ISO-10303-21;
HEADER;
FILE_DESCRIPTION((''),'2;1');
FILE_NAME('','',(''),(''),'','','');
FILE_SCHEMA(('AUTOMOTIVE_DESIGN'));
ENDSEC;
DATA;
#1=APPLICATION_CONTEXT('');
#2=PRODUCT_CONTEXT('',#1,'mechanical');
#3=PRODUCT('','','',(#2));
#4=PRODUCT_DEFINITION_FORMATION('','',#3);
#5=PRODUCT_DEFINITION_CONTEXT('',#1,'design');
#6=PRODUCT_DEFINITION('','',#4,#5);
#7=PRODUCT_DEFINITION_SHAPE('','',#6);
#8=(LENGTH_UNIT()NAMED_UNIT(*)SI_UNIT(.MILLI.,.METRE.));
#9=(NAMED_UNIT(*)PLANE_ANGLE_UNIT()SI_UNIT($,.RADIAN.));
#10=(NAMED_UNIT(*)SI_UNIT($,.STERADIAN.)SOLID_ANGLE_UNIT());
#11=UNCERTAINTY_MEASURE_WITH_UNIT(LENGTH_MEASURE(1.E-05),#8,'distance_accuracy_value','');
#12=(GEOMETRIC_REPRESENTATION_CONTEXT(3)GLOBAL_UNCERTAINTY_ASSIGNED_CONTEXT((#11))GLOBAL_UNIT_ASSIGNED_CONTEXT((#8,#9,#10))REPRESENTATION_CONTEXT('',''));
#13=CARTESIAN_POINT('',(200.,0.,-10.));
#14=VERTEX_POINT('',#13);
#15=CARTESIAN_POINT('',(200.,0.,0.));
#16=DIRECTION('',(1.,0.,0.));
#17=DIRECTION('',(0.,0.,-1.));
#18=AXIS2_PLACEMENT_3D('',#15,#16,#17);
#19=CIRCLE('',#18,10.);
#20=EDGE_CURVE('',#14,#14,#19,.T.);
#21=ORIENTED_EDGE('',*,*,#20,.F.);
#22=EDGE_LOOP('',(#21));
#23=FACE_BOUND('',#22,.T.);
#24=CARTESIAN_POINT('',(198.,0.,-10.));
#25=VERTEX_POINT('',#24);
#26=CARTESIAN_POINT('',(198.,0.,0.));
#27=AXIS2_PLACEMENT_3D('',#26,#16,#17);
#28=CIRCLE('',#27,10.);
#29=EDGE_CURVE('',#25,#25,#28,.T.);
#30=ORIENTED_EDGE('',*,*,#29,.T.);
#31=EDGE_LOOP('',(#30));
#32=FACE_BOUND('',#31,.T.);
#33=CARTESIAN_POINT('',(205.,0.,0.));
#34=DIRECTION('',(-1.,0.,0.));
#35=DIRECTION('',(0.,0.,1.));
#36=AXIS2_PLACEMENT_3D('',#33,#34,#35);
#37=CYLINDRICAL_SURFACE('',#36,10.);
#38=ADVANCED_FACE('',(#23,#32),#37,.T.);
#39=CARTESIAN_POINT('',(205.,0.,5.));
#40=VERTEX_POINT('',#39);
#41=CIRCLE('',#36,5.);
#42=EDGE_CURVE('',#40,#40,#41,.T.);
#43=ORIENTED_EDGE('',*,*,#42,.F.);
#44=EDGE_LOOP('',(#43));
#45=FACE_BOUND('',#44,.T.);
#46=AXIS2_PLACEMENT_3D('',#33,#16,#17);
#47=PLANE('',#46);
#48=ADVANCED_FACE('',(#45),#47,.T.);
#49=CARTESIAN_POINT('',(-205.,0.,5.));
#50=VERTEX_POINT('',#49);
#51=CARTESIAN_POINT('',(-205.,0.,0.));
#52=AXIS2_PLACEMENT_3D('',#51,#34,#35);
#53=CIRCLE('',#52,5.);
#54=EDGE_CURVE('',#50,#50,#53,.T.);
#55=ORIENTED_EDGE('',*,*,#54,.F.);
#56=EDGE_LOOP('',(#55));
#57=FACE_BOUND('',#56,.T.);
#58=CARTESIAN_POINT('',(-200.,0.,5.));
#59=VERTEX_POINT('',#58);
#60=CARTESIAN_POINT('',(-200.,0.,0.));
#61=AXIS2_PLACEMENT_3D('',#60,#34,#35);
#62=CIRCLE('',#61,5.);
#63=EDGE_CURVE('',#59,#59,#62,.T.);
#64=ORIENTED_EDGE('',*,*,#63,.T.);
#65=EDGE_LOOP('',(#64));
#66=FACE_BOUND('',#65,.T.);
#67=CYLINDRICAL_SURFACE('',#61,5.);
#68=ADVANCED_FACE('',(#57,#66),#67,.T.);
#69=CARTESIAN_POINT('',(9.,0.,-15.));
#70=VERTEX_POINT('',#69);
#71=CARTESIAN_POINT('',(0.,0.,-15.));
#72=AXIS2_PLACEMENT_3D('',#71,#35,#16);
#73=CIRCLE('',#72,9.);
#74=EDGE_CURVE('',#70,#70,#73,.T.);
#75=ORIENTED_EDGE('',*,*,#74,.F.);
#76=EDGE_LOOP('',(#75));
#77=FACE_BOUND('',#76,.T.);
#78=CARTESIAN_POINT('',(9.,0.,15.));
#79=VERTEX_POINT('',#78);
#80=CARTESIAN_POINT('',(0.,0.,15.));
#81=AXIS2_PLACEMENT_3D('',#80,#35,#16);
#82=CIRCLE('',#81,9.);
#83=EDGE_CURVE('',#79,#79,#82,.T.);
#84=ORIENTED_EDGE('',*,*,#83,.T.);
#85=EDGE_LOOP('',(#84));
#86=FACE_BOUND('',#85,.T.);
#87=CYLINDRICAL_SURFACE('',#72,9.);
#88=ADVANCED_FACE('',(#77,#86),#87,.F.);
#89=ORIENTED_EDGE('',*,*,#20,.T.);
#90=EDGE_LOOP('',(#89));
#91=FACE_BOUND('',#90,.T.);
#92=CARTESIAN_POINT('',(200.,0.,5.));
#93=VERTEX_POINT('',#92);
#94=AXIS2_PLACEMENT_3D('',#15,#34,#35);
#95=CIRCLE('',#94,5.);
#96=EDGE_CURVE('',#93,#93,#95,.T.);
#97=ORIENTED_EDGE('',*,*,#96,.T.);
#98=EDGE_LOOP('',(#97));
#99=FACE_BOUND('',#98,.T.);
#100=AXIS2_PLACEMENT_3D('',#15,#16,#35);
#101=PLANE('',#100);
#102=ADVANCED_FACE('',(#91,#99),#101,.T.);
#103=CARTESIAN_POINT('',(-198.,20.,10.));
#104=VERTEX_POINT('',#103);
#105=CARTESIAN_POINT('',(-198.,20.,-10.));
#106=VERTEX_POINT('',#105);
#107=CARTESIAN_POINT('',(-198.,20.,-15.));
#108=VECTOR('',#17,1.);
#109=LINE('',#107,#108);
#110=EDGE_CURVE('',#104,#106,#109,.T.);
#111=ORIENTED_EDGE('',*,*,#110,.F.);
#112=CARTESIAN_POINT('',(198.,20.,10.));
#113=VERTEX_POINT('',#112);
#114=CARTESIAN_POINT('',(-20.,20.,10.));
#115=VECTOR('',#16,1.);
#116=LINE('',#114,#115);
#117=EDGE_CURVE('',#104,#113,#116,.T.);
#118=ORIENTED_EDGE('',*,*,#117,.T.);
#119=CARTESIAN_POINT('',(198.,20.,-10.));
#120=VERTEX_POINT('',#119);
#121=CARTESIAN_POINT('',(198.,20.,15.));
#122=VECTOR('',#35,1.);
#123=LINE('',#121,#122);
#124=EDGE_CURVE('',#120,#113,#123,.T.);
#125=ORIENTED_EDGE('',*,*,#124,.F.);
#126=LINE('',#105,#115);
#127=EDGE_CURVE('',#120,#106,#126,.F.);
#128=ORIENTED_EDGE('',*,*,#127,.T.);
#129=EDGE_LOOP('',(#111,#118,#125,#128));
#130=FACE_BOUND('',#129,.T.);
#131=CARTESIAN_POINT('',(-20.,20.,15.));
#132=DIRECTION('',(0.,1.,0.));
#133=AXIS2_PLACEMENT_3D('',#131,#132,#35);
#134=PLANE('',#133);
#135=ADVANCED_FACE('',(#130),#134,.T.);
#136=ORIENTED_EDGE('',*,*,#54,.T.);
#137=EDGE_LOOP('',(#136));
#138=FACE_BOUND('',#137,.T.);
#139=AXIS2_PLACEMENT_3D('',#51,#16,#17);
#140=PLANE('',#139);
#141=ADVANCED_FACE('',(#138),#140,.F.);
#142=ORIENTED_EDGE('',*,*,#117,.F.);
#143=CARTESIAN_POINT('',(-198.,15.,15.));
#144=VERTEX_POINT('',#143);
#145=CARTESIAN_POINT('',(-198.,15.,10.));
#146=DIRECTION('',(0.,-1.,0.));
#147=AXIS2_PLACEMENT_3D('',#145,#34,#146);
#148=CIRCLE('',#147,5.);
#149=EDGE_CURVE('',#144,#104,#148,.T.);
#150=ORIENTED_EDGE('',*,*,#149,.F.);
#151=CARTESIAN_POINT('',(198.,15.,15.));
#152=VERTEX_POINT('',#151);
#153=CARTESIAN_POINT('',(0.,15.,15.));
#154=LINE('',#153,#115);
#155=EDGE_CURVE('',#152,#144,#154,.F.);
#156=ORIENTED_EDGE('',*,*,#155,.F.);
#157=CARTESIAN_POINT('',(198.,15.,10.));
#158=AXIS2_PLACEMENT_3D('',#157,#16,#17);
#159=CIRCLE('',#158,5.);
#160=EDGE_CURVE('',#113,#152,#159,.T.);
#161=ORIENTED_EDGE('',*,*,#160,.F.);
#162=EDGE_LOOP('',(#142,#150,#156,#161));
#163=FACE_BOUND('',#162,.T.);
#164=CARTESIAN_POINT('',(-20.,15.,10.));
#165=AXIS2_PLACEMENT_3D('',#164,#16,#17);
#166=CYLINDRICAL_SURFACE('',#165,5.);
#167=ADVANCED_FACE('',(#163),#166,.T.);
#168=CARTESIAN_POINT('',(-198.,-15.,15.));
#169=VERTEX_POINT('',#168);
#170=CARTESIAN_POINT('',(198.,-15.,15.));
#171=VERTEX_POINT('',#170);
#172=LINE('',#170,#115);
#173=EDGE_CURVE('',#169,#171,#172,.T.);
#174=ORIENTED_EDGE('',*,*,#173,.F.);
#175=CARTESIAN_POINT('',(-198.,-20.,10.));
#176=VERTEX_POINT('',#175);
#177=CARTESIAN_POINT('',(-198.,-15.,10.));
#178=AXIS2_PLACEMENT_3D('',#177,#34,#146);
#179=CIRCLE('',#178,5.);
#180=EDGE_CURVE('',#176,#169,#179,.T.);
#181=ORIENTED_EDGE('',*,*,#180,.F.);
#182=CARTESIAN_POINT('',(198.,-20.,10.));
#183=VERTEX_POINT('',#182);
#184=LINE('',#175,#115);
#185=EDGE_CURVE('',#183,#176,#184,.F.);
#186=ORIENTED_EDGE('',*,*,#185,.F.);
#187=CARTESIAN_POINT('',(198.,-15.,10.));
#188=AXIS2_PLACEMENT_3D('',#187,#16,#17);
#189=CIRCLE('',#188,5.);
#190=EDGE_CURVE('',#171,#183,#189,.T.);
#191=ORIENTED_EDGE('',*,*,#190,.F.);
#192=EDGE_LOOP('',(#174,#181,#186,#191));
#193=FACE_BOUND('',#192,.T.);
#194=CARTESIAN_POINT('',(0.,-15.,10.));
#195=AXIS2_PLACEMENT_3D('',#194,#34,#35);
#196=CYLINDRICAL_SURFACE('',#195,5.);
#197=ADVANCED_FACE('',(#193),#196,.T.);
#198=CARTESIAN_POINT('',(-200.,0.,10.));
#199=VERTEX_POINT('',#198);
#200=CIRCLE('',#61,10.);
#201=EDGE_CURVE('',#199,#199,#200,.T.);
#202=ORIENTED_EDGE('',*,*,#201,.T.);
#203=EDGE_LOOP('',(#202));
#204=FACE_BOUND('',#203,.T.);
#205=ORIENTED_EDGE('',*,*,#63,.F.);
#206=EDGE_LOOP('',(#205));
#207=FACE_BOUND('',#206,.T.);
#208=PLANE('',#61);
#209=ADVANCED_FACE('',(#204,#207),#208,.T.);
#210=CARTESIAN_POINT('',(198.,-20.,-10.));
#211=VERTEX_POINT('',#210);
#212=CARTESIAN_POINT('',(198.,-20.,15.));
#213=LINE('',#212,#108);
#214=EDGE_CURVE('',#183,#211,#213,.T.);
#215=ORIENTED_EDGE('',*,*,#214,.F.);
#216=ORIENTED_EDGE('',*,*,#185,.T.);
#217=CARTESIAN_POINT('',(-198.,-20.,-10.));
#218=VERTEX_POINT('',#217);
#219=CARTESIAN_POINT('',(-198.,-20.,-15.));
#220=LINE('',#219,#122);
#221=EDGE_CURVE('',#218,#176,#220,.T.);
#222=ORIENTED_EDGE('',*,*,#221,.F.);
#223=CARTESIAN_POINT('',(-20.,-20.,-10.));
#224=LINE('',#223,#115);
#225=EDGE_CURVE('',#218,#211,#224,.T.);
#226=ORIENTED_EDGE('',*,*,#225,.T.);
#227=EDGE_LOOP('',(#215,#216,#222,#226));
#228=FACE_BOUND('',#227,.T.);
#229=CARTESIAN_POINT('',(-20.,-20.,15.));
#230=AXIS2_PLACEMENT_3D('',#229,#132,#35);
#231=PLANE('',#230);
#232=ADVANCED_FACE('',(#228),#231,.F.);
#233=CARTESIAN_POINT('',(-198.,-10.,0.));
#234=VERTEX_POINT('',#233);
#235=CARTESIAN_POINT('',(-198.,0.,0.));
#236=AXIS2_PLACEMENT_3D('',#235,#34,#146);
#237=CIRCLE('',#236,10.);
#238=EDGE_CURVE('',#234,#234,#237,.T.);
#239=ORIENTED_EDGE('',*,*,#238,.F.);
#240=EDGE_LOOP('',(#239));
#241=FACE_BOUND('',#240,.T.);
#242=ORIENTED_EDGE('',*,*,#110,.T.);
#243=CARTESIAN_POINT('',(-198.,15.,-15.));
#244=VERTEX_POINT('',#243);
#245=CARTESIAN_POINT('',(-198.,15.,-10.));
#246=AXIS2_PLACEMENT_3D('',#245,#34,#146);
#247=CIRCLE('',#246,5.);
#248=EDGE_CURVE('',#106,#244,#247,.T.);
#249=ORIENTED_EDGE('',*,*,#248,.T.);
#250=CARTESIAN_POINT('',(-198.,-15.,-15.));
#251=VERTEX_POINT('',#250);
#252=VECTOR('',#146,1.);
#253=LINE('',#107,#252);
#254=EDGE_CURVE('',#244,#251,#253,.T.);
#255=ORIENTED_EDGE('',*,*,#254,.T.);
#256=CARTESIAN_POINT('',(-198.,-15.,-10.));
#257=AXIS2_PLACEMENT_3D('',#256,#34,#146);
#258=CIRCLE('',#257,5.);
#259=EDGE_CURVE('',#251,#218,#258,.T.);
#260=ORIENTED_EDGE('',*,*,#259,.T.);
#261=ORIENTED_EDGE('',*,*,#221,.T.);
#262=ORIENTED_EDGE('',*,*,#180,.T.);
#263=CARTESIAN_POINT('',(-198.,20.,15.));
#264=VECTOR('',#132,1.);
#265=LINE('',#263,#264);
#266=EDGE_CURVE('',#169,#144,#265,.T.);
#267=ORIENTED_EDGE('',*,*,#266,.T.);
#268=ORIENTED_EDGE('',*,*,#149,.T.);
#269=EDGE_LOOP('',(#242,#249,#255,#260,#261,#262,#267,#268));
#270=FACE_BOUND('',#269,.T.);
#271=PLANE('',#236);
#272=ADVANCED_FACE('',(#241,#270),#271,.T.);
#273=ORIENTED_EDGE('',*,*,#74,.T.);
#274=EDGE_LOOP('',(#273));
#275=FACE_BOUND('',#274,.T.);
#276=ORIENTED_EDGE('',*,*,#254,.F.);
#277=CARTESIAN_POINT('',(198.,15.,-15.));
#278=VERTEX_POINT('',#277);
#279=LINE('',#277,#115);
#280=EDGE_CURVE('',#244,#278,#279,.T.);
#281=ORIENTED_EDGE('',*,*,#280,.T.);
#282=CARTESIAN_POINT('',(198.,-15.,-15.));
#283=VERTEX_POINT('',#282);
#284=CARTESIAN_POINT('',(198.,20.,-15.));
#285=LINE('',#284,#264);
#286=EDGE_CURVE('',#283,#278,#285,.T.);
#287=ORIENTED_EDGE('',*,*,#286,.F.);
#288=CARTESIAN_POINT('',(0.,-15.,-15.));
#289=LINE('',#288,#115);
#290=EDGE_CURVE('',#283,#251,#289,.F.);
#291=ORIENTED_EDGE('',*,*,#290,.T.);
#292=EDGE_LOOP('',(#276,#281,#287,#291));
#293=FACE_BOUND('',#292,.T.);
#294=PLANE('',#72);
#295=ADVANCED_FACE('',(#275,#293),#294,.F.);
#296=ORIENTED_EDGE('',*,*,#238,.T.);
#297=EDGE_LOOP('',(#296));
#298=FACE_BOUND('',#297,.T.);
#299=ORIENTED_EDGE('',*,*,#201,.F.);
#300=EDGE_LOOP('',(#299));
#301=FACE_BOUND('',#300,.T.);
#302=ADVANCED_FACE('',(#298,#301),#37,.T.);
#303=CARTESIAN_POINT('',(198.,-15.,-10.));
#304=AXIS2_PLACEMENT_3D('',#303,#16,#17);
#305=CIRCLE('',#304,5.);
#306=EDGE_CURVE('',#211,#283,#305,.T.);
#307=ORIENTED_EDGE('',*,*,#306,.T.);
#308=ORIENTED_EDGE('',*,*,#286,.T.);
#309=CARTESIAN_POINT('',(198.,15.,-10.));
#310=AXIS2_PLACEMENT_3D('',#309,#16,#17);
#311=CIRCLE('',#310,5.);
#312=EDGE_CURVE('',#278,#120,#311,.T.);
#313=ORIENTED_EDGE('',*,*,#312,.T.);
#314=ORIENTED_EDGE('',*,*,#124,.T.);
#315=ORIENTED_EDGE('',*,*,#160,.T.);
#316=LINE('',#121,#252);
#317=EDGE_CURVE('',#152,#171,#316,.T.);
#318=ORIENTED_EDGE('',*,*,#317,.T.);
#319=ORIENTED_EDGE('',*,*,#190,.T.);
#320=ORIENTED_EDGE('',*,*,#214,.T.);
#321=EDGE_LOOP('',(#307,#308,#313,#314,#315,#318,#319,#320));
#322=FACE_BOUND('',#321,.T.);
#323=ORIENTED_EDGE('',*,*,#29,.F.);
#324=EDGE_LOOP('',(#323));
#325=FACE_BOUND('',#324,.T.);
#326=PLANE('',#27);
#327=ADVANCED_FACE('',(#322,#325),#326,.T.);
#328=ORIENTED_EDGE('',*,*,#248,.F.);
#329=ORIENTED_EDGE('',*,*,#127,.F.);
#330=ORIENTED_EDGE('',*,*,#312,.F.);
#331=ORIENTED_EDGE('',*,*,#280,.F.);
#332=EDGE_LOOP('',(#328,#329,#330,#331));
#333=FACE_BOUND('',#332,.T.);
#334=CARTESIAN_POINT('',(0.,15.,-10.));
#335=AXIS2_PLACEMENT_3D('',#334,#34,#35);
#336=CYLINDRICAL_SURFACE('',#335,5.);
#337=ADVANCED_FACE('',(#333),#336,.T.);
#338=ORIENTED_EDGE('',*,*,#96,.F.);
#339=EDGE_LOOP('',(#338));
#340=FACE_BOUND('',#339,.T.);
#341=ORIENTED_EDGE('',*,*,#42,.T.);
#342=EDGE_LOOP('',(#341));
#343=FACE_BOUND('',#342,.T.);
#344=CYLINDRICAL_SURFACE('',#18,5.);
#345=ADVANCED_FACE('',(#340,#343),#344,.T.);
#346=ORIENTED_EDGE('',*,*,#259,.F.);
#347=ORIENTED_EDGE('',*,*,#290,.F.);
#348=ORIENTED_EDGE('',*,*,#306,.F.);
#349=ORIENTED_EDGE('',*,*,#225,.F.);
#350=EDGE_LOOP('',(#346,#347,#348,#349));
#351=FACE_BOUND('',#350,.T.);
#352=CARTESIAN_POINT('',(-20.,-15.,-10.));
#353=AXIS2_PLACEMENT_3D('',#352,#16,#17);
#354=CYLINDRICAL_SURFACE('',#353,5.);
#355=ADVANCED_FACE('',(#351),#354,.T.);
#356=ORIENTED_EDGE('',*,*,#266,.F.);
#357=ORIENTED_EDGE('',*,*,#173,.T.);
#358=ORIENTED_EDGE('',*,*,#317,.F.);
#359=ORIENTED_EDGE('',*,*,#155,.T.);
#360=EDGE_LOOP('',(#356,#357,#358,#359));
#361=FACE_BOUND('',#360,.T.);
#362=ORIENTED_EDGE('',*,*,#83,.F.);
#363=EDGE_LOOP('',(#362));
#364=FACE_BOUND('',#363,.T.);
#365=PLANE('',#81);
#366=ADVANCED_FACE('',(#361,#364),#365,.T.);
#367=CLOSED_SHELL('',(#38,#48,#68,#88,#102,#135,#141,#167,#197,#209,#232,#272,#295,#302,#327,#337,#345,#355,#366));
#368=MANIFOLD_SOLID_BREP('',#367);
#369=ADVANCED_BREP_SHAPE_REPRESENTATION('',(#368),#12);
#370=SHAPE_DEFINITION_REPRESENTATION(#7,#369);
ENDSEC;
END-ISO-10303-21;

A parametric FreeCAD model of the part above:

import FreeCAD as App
import Part
import Sketcher

V = App.Vector


def edges_at(feature, points):
    """Names of the edges that pass closest to the given points."""
    edges = feature.Shape.Edges
    near = lambda p: min(range(len(edges)), key=lambda i: edges[i].distToShape(Part.Vertex(*p))[0])
    return sorted({f"Edge{near(p) + 1}" for p in points})

doc = App.newDocument("Part")
body = doc.addObject("PartDesign::Body", "Body")

sketch1 = body.newObject("Sketcher::SketchObject", "Sketch")
sketch1.AttachmentSupport = (doc.getObject("YZ_Plane"), [""])
sketch1.MapMode = "FlatFace"
sketch1.addGeometry(Part.Circle(V(0, 0, 0), V(0, 0, 1), 10), False)
sketch1.addConstraint([
    Sketcher.Constraint("Coincident", 0, 3, -1, 1),
    Sketcher.Constraint("Diameter", 0, 20.0),
])
pad1 = body.newObject("PartDesign::Pad", "Pad")
pad1.Profile = sketch1
pad1.Length = 410
pad1.Midplane = True

sketch2 = body.newObject("Sketcher::SketchObject", "Sketch001")
sketch2.AttachmentSupport = (doc.getObject("YZ_Plane"), [""])
sketch2.MapMode = "FlatFace"
sketch2.AttachmentOffset = App.Placement(V(0, 0, -205), App.Rotation())
sketch2.addGeometry([
    Part.Circle(V(0, 0, 0), V(0, 0, 1), 12),
    Part.Circle(V(0, 0, 0), V(0, 0, 1), 5),
], False)
sketch2.addConstraint([
    Sketcher.Constraint("Coincident", 0, 3, -1, 1),
    Sketcher.Constraint("Coincident", 1, 3, -1, 1),
    Sketcher.Constraint("Diameter", 0, 25.0),
    Sketcher.Constraint("Diameter", 1, 10.0),
])
pocket1 = body.newObject("PartDesign::Pocket", "Pocket")
pocket1.Profile = sketch2
pocket1.Length = 5
pocket1.Reversed = True
doc.recompute()

mirrored = body.newObject("PartDesign::Mirrored", "Mirrored")
mirrored.Originals = [pocket1]
mirrored.MirrorPlane = (doc.getObject("YZ_Plane"), [""])
body.Tip = mirrored

sketch3 = body.newObject("Sketcher::SketchObject", "Sketch002")
sketch3.AttachmentSupport = (doc.getObject("XY_Plane"), [""])
sketch3.MapMode = "FlatFace"
sketch3.addGeometry([
    Part.LineSegment(V(-20, 20, 0), V(-20, -20, 0)),
    Part.LineSegment(V(-20, -20, 0), V(20, -20, 0)),
    Part.LineSegment(V(20, -20, 0), V(20, 20, 0)),
    Part.LineSegment(V(20, 20, 0), V(-20, 20, 0)),
], False)
sketch3.addConstraint([
    Sketcher.Constraint("Coincident", 0, 2, 1, 1),
    Sketcher.Constraint("Coincident", 1, 2, 2, 1),
    Sketcher.Constraint("Coincident", 2, 2, 3, 1),
    Sketcher.Constraint("Coincident", 3, 2, 0, 1),
    Sketcher.Constraint("Vertical", 0),
    Sketcher.Constraint("Horizontal", 1),
    Sketcher.Constraint("Vertical", 2),
    Sketcher.Constraint("Horizontal", 3),
    Sketcher.Constraint("Symmetric", 0, 2, 2, 2, -1, 1),
    Sketcher.Constraint("Equal", 3, 0),
    Sketcher.Constraint("DistanceX", 1, 1, 1, 2, 40.0),
])
pad2 = body.newObject("PartDesign::Pad", "Pad001")
pad2.Profile = sketch3
pad2.Length = 30
pad2.Midplane = True

sketch4 = body.newObject("Sketcher::SketchObject", "Sketch003")
sketch4.AttachmentSupport = (doc.getObject("XY_Plane"), [""])
sketch4.MapMode = "FlatFace"
sketch4.addGeometry(Part.Circle(V(0, 0, 0), V(0, 0, 1), 9), False)
sketch4.addConstraint([
    Sketcher.Constraint("Coincident", 0, 3, -1, 1),
    Sketcher.Constraint("Diameter", 0, 18.0),
])
pocket2 = body.newObject("PartDesign::Pocket", "Pocket001")
pocket2.Profile = sketch4
pocket2.Length = 30
pocket2.Midplane = True
doc.recompute()

fillet = body.newObject("PartDesign::Fillet", "Fillet")
fillet.Base = (pocket2, edges_at(pocket2, [(-20, 0, 10), (20, 0, 10)]))
fillet.Radius = 2

sketch5 = body.newObject("Sketcher::SketchObject", "Sketch004")
sketch5.AttachmentSupport = (doc.getObject("YZ_Plane"), [""])
sketch5.MapMode = "FlatFace"
sketch5.AttachmentOffset = App.Placement(V(0, 0, -20), App.Rotation())
sketch5.addGeometry([
    Part.LineSegment(V(20, -15, 0), V(-20, -15, 0)),
    Part.LineSegment(V(-20, -15, 0), V(-20, 15, 0)),
    Part.LineSegment(V(-20, 15, 0), V(20, 15, 0)),
    Part.LineSegment(V(20, 15, 0), V(20, -15, 0)),
], False)
sketch5.addConstraint([
    Sketcher.Constraint("Coincident", 0, 2, 1, 1),
    Sketcher.Constraint("Coincident", 1, 2, 2, 1),
    Sketcher.Constraint("Coincident", 2, 2, 3, 1),
    Sketcher.Constraint("Coincident", 3, 2, 0, 1),
    Sketcher.Constraint("Horizontal", 0),
    Sketcher.Constraint("Vertical", 1),
    Sketcher.Constraint("Horizontal", 2),
    Sketcher.Constraint("Vertical", 3),
    Sketcher.Constraint("Symmetric", 0, 2, 2, 2, -1, 1),
    Sketcher.Constraint("DistanceX", 0, 2, 0, 1, 40.0),
    Sketcher.Constraint("DistanceY", 1, 1, 1, 2, 30.0),
])
pad3 = body.newObject("PartDesign::Pad", "Pad002")
pad3.Profile = sketch5
pad3.Length = 178
pad3.Reversed = True

sketch6 = body.newObject("Sketcher::SketchObject", "Sketch005")
sketch6.AttachmentSupport = (doc.getObject("YZ_Plane"), [""])
sketch6.MapMode = "FlatFace"
sketch6.AttachmentOffset = App.Placement(V(0, 0, 20), App.Rotation())
sketch6.addGeometry([
    Part.LineSegment(V(20, 15, 0), V(-20, 15, 0)),
    Part.LineSegment(V(-20, 15, 0), V(-20, -15, 0)),
    Part.LineSegment(V(-20, -15, 0), V(20, -15, 0)),
    Part.LineSegment(V(20, -15, 0), V(20, 15, 0)),
], False)
sketch6.addConstraint([
    Sketcher.Constraint("Coincident", 0, 2, 1, 1),
    Sketcher.Constraint("Coincident", 1, 2, 2, 1),
    Sketcher.Constraint("Coincident", 2, 2, 3, 1),
    Sketcher.Constraint("Coincident", 3, 2, 0, 1),
    Sketcher.Constraint("Horizontal", 0),
    Sketcher.Constraint("Vertical", 1),
    Sketcher.Constraint("Horizontal", 2),
    Sketcher.Constraint("Vertical", 3),
    Sketcher.Constraint("Symmetric", 0, 2, 2, 2, -1, 1),
    Sketcher.Constraint("DistanceX", 0, 2, 0, 1, 40.0),
    Sketcher.Constraint("DistanceY", 1, 2, 1, 1, 30.0),
])
pad4 = body.newObject("PartDesign::Pad", "Pad003")
pad4.Profile = sketch6
pad4.Length = 178
doc.recompute()

fillet2 = body.newObject("PartDesign::Fillet", "Fillet001")
fillet2.Base = (pad4, edges_at(pad4, [
    (0, -20, -15),
    (0, 20, 15),
    (0, -20, 15),
    (0, 20, -15),
]))
fillet2.Radius = 5

doc.recompute()
